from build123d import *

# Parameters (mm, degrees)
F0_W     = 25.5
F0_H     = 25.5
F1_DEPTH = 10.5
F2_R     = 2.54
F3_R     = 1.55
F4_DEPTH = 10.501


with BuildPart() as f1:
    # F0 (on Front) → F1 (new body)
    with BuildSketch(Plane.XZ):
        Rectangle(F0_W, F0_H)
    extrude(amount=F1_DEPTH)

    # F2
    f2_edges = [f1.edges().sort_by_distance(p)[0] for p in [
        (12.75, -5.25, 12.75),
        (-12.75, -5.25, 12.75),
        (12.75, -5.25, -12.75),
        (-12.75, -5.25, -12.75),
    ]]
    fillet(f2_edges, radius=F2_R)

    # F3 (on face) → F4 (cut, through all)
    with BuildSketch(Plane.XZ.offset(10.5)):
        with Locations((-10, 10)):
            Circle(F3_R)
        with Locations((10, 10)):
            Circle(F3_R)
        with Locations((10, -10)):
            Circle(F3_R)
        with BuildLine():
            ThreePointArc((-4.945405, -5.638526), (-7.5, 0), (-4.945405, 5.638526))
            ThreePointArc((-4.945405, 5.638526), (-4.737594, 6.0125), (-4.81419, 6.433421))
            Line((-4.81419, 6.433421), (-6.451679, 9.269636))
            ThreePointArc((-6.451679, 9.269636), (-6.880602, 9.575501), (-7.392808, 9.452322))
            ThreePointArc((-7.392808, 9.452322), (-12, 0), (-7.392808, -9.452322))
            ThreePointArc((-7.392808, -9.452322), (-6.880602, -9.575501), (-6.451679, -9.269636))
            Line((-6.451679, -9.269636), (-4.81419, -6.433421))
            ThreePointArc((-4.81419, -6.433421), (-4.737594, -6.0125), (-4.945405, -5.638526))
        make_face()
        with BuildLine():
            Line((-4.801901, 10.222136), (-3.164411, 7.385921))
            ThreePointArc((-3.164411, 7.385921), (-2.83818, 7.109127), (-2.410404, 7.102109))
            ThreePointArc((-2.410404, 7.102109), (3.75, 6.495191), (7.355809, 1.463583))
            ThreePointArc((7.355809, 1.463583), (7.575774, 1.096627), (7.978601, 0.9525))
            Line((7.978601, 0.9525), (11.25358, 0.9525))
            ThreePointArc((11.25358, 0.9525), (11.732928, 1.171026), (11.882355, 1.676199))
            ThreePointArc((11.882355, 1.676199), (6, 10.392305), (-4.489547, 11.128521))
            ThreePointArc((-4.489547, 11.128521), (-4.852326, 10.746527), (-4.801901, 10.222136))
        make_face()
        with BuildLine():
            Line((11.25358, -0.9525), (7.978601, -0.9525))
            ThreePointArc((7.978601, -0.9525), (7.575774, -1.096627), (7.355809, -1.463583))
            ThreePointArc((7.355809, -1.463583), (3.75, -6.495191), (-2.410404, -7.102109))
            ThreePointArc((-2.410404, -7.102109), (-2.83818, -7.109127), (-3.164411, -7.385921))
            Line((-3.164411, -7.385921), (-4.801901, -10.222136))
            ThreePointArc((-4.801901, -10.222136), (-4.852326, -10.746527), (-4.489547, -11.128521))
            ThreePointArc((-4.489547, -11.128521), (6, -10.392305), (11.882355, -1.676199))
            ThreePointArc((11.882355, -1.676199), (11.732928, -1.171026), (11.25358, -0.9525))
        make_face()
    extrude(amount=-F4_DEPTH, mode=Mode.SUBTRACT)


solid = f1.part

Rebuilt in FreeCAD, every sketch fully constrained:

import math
import FreeCAD as App
import Part
import Sketcher
from FreeCAD import Vector
Q = App.Units.Quantity


def edges_at(feature, points):
    """Names of the edges that pass closest to the given points."""
    edges = feature.Shape.Edges
    near = lambda p: min(range(len(edges)), key=lambda i: edges[i].distToShape(Part.Vertex(*p))[0])
    return sorted({f"Edge{near(p) + 1}" for p in points})


def add_polygon(sketch, points):
    """Adds a closed chain of lines whose ends are joined by coincident constraints."""
    first, n = sketch.GeometryCount, len(points)
    for a, b in zip(points, points[1:] + points[:1]):
        sketch.addGeometry(Part.LineSegment(App.Vector(*a, 0), App.Vector(*b, 0)), False)
    for i in range(n):
        sketch.addConstraint(Sketcher.Constraint("Coincident", first + i, 2, first + (i + 1) % n, 1))

doc = App.newDocument("Part")
body = doc.addObject("PartDesign::Body", "Body")

# Sketch on XZ plane
sketch1 = body.newObject("Sketcher::SketchObject", "Sketch")
sketch1.AttachmentSupport = (doc.getObject("XZ_Plane"), [""])
sketch1.MapMode = "FlatFace"
add_polygon(sketch1, [(-13, 13), (-13, -13), (13, -13), (13, 13)])  # lines 0-3
sketch1.addConstraint(Sketcher.Constraint("Vertical", 0))
sketch1.addConstraint(Sketcher.Constraint("Horizontal", 1))
sketch1.addConstraint(Sketcher.Constraint("Vertical", 2))
sketch1.addConstraint(Sketcher.Constraint("Horizontal", 3))
sketch1.addConstraint(Sketcher.Constraint("Symmetric", 0, 2, 2, 2, -1, 1))
sketch1.addConstraint(Sketcher.Constraint("Equal", 3, 0))
sketch1.addConstraint(Sketcher.Constraint("DistanceX", 1, 1, 1, 2, Q("25.5 mm")))
pad1 = body.newObject("PartDesign::Pad", "Pad")
pad1.Profile = sketch1
pad1.Length = 10.5
doc.recompute()

fillet = body.newObject("PartDesign::Fillet", "Fillet")
fillet.Base = (pad1, edges_at(pad1, [
    (12.75, -5.25, 12.75),
    (-12.75, -5.25, 12.75),
    (12.75, -5.25, -12.75),
    (-12.75, -5.25, -12.75),
]))
fillet.Radius = 2.54

# Sketch on XZ plane
sketch2 = body.newObject("Sketcher::SketchObject", "Sketch001")
sketch2.AttachmentSupport = (doc.getObject("XZ_Plane"), [""])
sketch2.MapMode = "FlatFace"
sketch2.AttachmentOffset = App.Placement(Vector(0, 0, 10.5), App.Rotation())
sketch2.addGeometry(Part.Circle(Vector(-10, 10, 0), Vector(0, 0, 1), 1.55), False)
sketch2.addGeometry(Part.Circle(Vector(10, 10, 0), Vector(0, 0, 1), 1.55), False)
sketch2.addGeometry(Part.Circle(Vector(10, -10, 0), Vector(0, 0, 1), 1.55), False)
sketch2.addGeometry(Part.ArcOfCircle(Part.Circle(Vector(0.000001, 0, 0), Vector(0, 0, 1), 7.500001), math.radians(131.253168), math.radians(228.746832)), False)
sketch2.addGeometry(Part.ArcOfCircle(Part.Circle(Vector(-5.364113, 6.115921, 0), Vector(0, 0, 1), 0.634998), math.radians(-48.746991), math.radians(30.000176)), False)
sketch2.addGeometry(Part.LineSegment(Vector(-4.81419, 6.433421, 0), Vector(-6.451679, 9.269636, 0)), False)
sketch2.addGeometry(Part.ArcOfCircle(Part.Circle(Vector(-7.001605, 8.952137, 0), Vector(0, 0, 1), 0.635), math.radians(29.999928), math.radians(128.029516)), False)
sketch2.addGeometry(Part.ArcOfCircle(Part.Circle(Vector(0, 0, 0), Vector(0, 0, 1), 12), math.radians(128.029516), math.radians(231.970484)), False)
sketch2.addGeometry(Part.ArcOfCircle(Part.Circle(Vector(-7.001605, -8.952137, 0), Vector(0, 0, 1), 0.635), math.radians(-128.029516), math.radians(-29.999928)), False)
sketch2.addGeometry(Part.LineSegment(Vector(-6.451679, -9.269636, 0), Vector(-4.81419, -6.433421, 0)), False)
sketch2.addGeometry(Part.ArcOfCircle(Part.Circle(Vector(-5.364113, -6.115921, 0), Vector(0, 0, 1), 0.634998), math.radians(-30.000176), math.radians(48.746991)), False)
sketch2.addGeometry(Part.LineSegment(Vector(-4.801901, 10.222136, 0), Vector(-3.164411, 7.385921, 0)), False)
sketch2.addGeometry(Part.ArcOfCircle(Part.Circle(Vector(-2.614485, 7.703422, 0), Vector(0, 0, 1), 0.635001), math.radians(-149.999967), math.radians(-71.253209)), False)
sketch2.addGeometry(Part.ArcOfCircle(Part.Circle(Vector(0.000001, 0.000001, 0), Vector(0, 0, 1), 7.499999), math.radians(11.253153), math.radians(108.746844)), False)
sketch2.addGeometry(Part.ArcOfCircle(Part.Circle(Vector(7.978599, 1.587498, 0), Vector(0, 0, 1), 0.634998), math.radians(-168.746952), math.radians(-89.999839)), False)
sketch2.addGeometry(Part.LineSegment(Vector(7.978601, 0.9525, 0), Vector(11.25358, 0.9525, 0)), False)
sketch2.addGeometry(Part.ArcOfCircle(Part.Circle(Vector(11.25358, 1.5875, 0), Vector(0, 0, 1), 0.635), math.radians(-89.999991), math.radians(8.029484)), False)
sketch2.addGeometry(Part.ArcOfCircle(Part.Circle(Vector(0, 0, 0), Vector(0, 0, 1), 12.000001), math.radians(8.029519), math.radians(111.970481)), False)
sketch2.addGeometry(Part.ArcOfCircle(Part.Circle(Vector(-4.251974, 10.539636, 0), Vector(0, 0, 1), 0.635001), math.radians(111.970539), math.radians(210.000007)), False)
sketch2.addGeometry(Part.LineSegment(Vector(11.25358, -0.9525, 0), Vector(7.978601, -0.9525, 0)), False)
sketch2.addGeometry(Part.ArcOfCircle(Part.Circle(Vector(7.978599, -1.587498, 0), Vector(0, 0, 1), 0.634998), math.radians(89.999839), math.radians(168.746952)), False)
sketch2.addGeometry(Part.ArcOfCircle(Part.Circle(Vector(0.000001, -0.000001, 0), Vector(0, 0, 1), 7.499999), math.radians(-108.746844), math.radians(-11.253153)), False)
sketch2.addGeometry(Part.ArcOfCircle(Part.Circle(Vector(-2.614485, -7.703422, 0), Vector(0, 0, 1), 0.635001), math.radians(71.253209), math.radians(149.999967)), False)
sketch2.addGeometry(Part.LineSegment(Vector(-3.164411, -7.385921, 0), Vector(-4.801901, -10.222136, 0)), False)
sketch2.addGeometry(Part.ArcOfCircle(Part.Circle(Vector(-4.251974, -10.539636, 0), Vector(0, 0, 1), 0.635001), math.radians(149.999993), math.radians(248.029461)), False)
sketch2.addGeometry(Part.ArcOfCircle(Part.Circle(Vector(0, 0, 0), Vector(0, 0, 1), 12.000001), math.radians(-111.970481), math.radians(-8.029519)), False)
sketch2.addGeometry(Part.ArcOfCircle(Part.Circle(Vector(11.25358, -1.5875, 0), Vector(0, 0, 1), 0.635), math.radians(-8.029484), math.radians(89.999991)), False)
sketch2.addConstraint(Sketcher.Constraint("Coincident", 3, 1, 4, 1))
sketch2.addConstraint(Sketcher.Constraint("Coincident", 4, 2, 5, 1))
sketch2.addConstraint(Sketcher.Constraint("Coincident", 5, 2, 6, 1))
sketch2.addConstraint(Sketcher.Constraint("Coincident", 6, 2, 7, 1))
sketch2.addConstraint(Sketcher.Constraint("Coincident", 7, 2, 8, 1))
sketch2.addConstraint(Sketcher.Constraint("Coincident", 8, 2, 9, 1))
sketch2.addConstraint(Sketcher.Constraint("Coincident", 9, 2, 10, 1))
sketch2.addConstraint(Sketcher.Constraint("Coincident", 10, 2, 3, 2))
sketch2.addConstraint(Sketcher.Constraint("Coincident", 11, 2, 12, 1))
sketch2.addConstraint(Sketcher.Constraint("Coincident", 12, 2, 13, 2))
sketch2.addConstraint(Sketcher.Constraint("Coincident", 13, 1, 14, 1))
sketch2.addConstraint(Sketcher.Constraint("Coincident", 14, 2, 15, 1))
sketch2.addConstraint(Sketcher.Constraint("Coincident", 15, 2, 16, 1))
sketch2.addConstraint(Sketcher.Constraint("Coincident", 16, 2, 17, 1))
sketch2.addConstraint(Sketcher.Constraint("Coincident", 17, 2, 18, 1))
sketch2.addConstraint(Sketcher.Constraint("Coincident", 18, 2, 11, 1))
sketch2.addConstraint(Sketcher.Constraint("Coincident", 19, 2, 20, 1))
sketch2.addConstraint(Sketcher.Constraint("Coincident", 20, 2, 21, 2))
sketch2.addConstraint(Sketcher.Constraint("Coincident", 21, 1, 22, 1))
sketch2.addConstraint(Sketcher.Constraint("Coincident", 22, 2, 23, 1))
sketch2.addConstraint(Sketcher.Constraint("Coincident", 23, 2, 24, 1))
sketch2.addConstraint(Sketcher.Constraint("Coincident", 24, 2, 25, 1))
sketch2.addConstraint(Sketcher.Constraint("Coincident", 25, 2, 26, 1))
sketch2.addConstraint(Sketcher.Constraint("Coincident", 26, 2, 19, 1))
sketch2.addConstraint(Sketcher.Constraint("Horizontal", 15))
sketch2.addConstraint(Sketcher.Constraint("Horizontal", 19))
sketch2.addConstraint(Sketcher.Constraint("Coincident", 3, 3, -1, 1))
sketch2.addConstraint(Sketcher.Constraint("Coincident", 7, 3, -1, 1))
sketch2.addConstraint(Sketcher.Constraint("Coincident", 13, 3, -1, 1))
sketch2.addConstraint(Sketcher.Constraint("Coincident", 17, 3, -1, 1))
sketch2.addConstraint(Sketcher.Constraint("Coincident", 21, 3, -1, 1))
sketch2.addConstraint(Sketcher.Constraint("Coincident", 25, 3, -1, 1))
sketch2.addConstraint(Sketcher.Constraint("Radius", 7, Q("12 mm")))
sketch2.addConstraint(Sketcher.Constraint("Radius", 17, Q("12.000001 mm")))
sketch2.addConstraint(Sketcher.Constraint("Radius", 25, Q("12.000001 mm")))
sketch2.addConstraint(Sketcher.Constraint("Diameter", 0, Q("3.1 mm")))
sketch2.addConstraint(Sketcher.Constraint("Diameter", 1, Q("3.1 mm")))
sketch2.addConstraint(Sketcher.Constraint("Diameter", 2, Q("3.1 mm")))
sketch2.addConstraint(Sketcher.Constraint("Radius", 3, Q("7.500001 mm")))
sketch2.addConstraint(Sketcher.Constraint("Radius", 13, Q("7.499999 mm")))
sketch2.addConstraint(Sketcher.Constraint("Radius", 21, Q("7.499999 mm")))
sketch2.addConstraint(Sketcher.Constraint("DistanceX", 0, 3, -1, 1, Q("10 mm")))
sketch2.addConstraint(Sketcher.Constraint("DistanceY", -1, 1, 0, 3, Q("10 mm")))
sketch2.addConstraint(Sketcher.Constraint("DistanceX", -1, 1, 1, 3, Q("10 mm")))
sketch2.addConstraint(Sketcher.Constraint("DistanceY", -1, 1, 1, 3, Q("10 mm")))
sketch2.addConstraint(Sketcher.Constraint("DistanceX", -1, 1, 2, 3, Q("10 mm")))
sketch2.addConstraint(Sketcher.Constraint("DistanceY", 2, 3, -1, 1, Q("10 mm")))
sketch2.addConstraint(Sketcher.Constraint("Radius", 6, Q("0.635 mm")))
sketch2.addConstraint(Sketcher.Constraint("Radius", 8, Q("0.635 mm")))
sketch2.addConstraint(Sketcher.Constraint("Radius", 12, Q("0.635001 mm")))
sketch2.addConstraint(Sketcher.Constraint("Radius", 14, Q("0.634998 mm")))
sketch2.addConstraint(Sketcher.Constraint("Radius", 16, Q("0.635 mm")))
sketch2.addConstraint(Sketcher.Constraint("Radius", 18, Q("0.635001 mm")))
sketch2.addConstraint(Sketcher.Constraint("Radius", 20, Q("0.634998 mm")))
sketch2.addConstraint(Sketcher.Constraint("Radius", 22, Q("0.635001 mm")))
sketch2.addConstraint(Sketcher.Constraint("Radius", 24, Q("0.635001 mm")))
sketch2.addConstraint(Sketcher.Constraint("Radius", 26, Q("0.635 mm")))
sketch2.addConstraint(Sketcher.Constraint("DistanceY", 4, 2, 12, 3, Q("1.270001 mm")))
sketch2.addConstraint(Sketcher.Constraint("DistanceY", 5, 2, 18, 3, Q("1.27 mm")))
sketch2.addConstraint(Sketcher.Constraint("DistanceY", 24, 3, 8, 2, Q("1.27 mm")))
sketch2.addConstraint(Sketcher.Constraint("DistanceY", 22, 3, 9, 2, Q("1.270001 mm")))
sketch2.addConstraint(Sketcher.Constraint("DistanceY", 4, 3, 11, 2, Q("1.27 mm")))
sketch2.addConstraint(Sketcher.Constraint("DistanceY", 20, 3, 14, 2, Q("2.539998 mm")))
sketch2.addConstraint(Sketcher.Constraint("DistanceY", 6, 3, 18, 2, Q("1.269999 mm")))
sketch2.addConstraint(Sketcher.Constraint("DistanceY", 22, 2, 10, 3, Q("1.27 mm")))
sketch2.addConstraint(Sketcher.Constraint("DistanceY", 23, 2, 8, 3, Q("1.269999 mm")))
sketch2.addConstraint(Sketcher.Constraint("Radius", 4, Q("0.634998 mm")))
sketch2.addConstraint(Sketcher.Constraint("Radius", 10, Q("0.634998 mm")))
sketch2.addConstraint(Sketcher.Constraint("DistanceX", 3, 1, 12, 2, Q("2.535001 mm")))
sketch2.addConstraint(Sketcher.Constraint("DistanceX", 10, 2, 21, 1, Q("2.535001 mm")))
sketch2.addConstraint(Sketcher.Constraint("DistanceX", 15, 1, 15, 2, Q("3.274979 mm")))
sketch2.addConstraint(Sketcher.Constraint("DistanceX", 19, 2, 19, 1, Q("3.274979 mm")))
sketch2.addConstraint(Sketcher.Constraint("DistanceX", -1, 1, 14, 3, Q("7.978599 mm")))
sketch2.addConstraint(Sketcher.Constraint("DistanceX", -1, 1, 14, 2, Q("7.978601 mm")))
sketch2.addConstraint(Sketcher.Constraint("DistanceY", -1, 1, 16, 2, Q("1.676199 mm")))
sketch2.addConstraint(Sketcher.Constraint("DistanceX", 18, 2, -1, 1, Q("4.801901 mm")))
sketch2.addConstraint(Sketcher.Constraint("DistanceX", -1, 1, 19, 2, Q("7.978601 mm")))
sketch2.addConstraint(Sketcher.Constraint("DistanceX", 23, 2, -1, 1, Q("4.801901 mm")))
sketch2.addConstraint(Sketcher.Constraint("DistanceY", 25, 2, -1, 1, Q("1.676199 mm")))
sketch2.addConstraint(Sketcher.Constraint("DistanceY", 4, 3, 12, 3, Q("1.587501 mm")))
sketch2.addConstraint(Sketcher.Constraint("DistanceY", 6, 3, 18, 3, Q("1.5875 mm")))
sketch2.addConstraint(Sketcher.Constraint("DistanceY", 22, 3, 10, 3, Q("1.587501 mm")))
sketch2.addConstraint(Sketcher.Constraint("DistanceY", 24, 3, 8, 3, Q("1.5875 mm")))
sketch2.addConstraint(Sketcher.Constraint("DistanceX", 6, 3, 3, 1, Q("2.0562 mm")))
sketch2.addConstraint(Sketcher.Constraint("DistanceY", 4, 3, 6, 2, Q("3.336401 mm")))
sketch2.addConstraint(Sketcher.Constraint("DistanceY", 7, 2, 10, 3, Q("3.336401 mm")))
sketch2.addConstraint(Sketcher.Constraint("DistanceX", 8, 3, 10, 2, Q("2.0562 mm")))
sketch2.addConstraint(Sketcher.Constraint("DistanceY", 6, 2, 17, 2, Q("1.676199 mm")))
sketch2.addConstraint(Sketcher.Constraint("DistanceY", 24, 2, 7, 2, Q("1.676199 mm")))
sketch2.addConstraint(Sketcher.Constraint("Distance", 5, Q("3.274979 mm")))
sketch2.addConstraint(Sketcher.Constraint("Distance", 9, Q("3.274979 mm")))
sketch2.addConstraint(Sketcher.Constraint("DistanceX", -1, 1, 13, 1, Q("7.355809 mm")))
sketch2.addConstraint(Sketcher.Constraint("DistanceX", -1, 1, 20, 2, Q("7.355809 mm")))
pocket1 = body.newObject("PartDesign::Pocket", "Pocket")
pocket1.Profile = sketch2
pocket1.Type = "ThroughAll"

doc.recompute()
